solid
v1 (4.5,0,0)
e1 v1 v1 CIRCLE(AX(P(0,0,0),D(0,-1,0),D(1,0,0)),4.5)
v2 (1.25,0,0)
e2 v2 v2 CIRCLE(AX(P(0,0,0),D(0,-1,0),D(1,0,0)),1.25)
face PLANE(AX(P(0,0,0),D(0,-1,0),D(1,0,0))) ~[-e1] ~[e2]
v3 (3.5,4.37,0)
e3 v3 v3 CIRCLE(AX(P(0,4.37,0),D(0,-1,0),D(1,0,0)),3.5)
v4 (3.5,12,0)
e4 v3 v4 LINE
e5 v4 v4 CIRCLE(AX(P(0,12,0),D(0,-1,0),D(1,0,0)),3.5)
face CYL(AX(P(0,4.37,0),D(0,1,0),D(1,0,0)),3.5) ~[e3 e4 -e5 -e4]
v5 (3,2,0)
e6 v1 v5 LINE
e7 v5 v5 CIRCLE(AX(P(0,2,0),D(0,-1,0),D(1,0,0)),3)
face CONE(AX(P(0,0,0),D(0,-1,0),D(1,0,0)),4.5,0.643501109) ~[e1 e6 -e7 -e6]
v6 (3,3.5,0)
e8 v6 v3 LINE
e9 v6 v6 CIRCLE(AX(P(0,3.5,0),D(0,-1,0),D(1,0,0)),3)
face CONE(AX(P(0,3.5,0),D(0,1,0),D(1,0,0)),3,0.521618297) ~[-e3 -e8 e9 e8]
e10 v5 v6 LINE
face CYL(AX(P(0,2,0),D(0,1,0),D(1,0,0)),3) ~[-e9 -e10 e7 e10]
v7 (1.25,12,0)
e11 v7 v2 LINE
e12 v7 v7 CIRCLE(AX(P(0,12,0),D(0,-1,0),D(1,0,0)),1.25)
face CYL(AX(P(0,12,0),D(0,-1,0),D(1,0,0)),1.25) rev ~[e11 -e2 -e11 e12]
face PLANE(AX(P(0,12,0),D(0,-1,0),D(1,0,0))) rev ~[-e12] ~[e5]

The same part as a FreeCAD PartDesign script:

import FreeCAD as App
import Part
import Sketcher

V = App.Vector


def add_polygon(sketch, points):
    """Adds a closed chain of lines whose ends are joined by coincident constraints."""
    first, n = sketch.GeometryCount, len(points)
    for a, b in zip(points, points[1:] + points[:1]):
        sketch.addGeometry(Part.LineSegment(App.Vector(*a, 0), App.Vector(*b, 0)), False)
    for i in range(n):
        sketch.addConstraint(Sketcher.Constraint("Coincident", first + i, 2, first + (i + 1) % n, 1))

doc = App.newDocument("Part")
body = doc.addObject("PartDesign::Body", "Body")

sketch1 = body.newObject("Sketcher::SketchObject", "Sketch")
sketch1.AttachmentSupport = (doc.getObject("XY_Plane"), [""])
sketch1.MapMode = "FlatFace"
add_polygon(sketch1, [(3.5, 12), (1.2, 12), (1.2, 0), (4.5, 0), (3, 2), (3, 3.5), (3.5, 4.4)])
sketch1.addConstraint(Sketcher.Constraint("Horizontal", 0))
sketch1.addConstraint(Sketcher.Constraint("Vertical", 1))
sketch1.addConstraint(Sketcher.Constraint("Horizontal", 2))
sketch1.addConstraint(Sketcher.Constraint("Vertical", 4))
sketch1.addConstraint(Sketcher.Constraint("Vertical", 6))
sketch1.addConstraint(Sketcher.Constraint("PointOnObject", 1, 2, -1))
sketch1.addConstraint(Sketcher.Constraint("DistanceY", 1, 2, 1, 1, 12.0))
sketch1.addConstraint(Sketcher.Constraint("DistanceY", 4, 1, 4, 2, 1.5))
sketch1.addConstraint(Sketcher.Constraint("DistanceX", -1, 1, 3, 2, 3.0))
sketch1.addConstraint(Sketcher.Constraint("DistanceY", -1, 1, 3, 2, 2.0))
sketch1.addConstraint(Sketcher.Constraint("DistanceX", 5, 2, 2, 2, 1.0))
sketch1.addConstraint(Sketcher.Constraint("Distance", 3, 2.5))
sketch1.addConstraint(Sketcher.Constraint("DistanceX", 0, 2, 0, 1, 2.25))
sketch1.addConstraint(Sketcher.Constraint("DistanceY", 6, 1, 6, 2, 7.63))
revolution = body.newObject("PartDesign::Revolution", "Revolution")
revolution.Profile = sketch1
revolution.ReferenceAxis = (sketch1, ["V_Axis"])
revolution.Angle = 360

doc.recompute()
